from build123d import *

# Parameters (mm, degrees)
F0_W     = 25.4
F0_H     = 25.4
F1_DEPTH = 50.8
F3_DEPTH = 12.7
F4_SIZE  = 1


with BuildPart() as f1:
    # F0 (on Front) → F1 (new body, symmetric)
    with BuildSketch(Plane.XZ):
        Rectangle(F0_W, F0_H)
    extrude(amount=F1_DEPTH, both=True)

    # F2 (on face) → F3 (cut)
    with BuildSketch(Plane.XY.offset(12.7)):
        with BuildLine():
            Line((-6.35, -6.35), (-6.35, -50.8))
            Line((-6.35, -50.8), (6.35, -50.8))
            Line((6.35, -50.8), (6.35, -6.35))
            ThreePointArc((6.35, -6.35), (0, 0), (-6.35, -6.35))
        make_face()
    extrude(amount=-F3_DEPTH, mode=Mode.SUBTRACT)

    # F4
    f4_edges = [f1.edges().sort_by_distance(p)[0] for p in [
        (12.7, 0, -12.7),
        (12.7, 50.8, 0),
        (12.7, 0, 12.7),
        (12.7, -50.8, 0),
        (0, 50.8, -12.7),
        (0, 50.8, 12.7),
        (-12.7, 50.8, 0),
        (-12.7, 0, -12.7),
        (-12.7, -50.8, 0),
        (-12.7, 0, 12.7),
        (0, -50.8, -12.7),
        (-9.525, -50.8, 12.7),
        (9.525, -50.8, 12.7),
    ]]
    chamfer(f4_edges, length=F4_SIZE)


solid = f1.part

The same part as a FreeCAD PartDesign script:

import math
import FreeCAD as App
import Part
import Sketcher
from FreeCAD import Vector
Q = App.Units.Quantity


def edges_at(feature, points):
    """Names of the edges that pass closest to the given points."""
    edges = feature.Shape.Edges
    near = lambda p: min(range(len(edges)), key=lambda i: edges[i].distToShape(Part.Vertex(*p))[0])
    return sorted({f"Edge{near(p) + 1}" for p in points})

doc = App.newDocument("Part")
body = doc.addObject("PartDesign::Body", "Body")

# Sketch on XZ plane
sketch1 = body.newObject("Sketcher::SketchObject", "Sketch")
sketch1.AttachmentSupport = (doc.getObject("XZ_Plane"), [""])
sketch1.MapMode = "FlatFace"
sketch1.addGeometry([
    Part.LineSegment(Vector(-13, 13, 0), Vector(-13, -13, 0)),
    Part.LineSegment(Vector(-13, -13, 0), Vector(13, -13, 0)),
    Part.LineSegment(Vector(13, -13, 0), Vector(13, 13, 0)),
    Part.LineSegment(Vector(13, 13, 0), Vector(-13, 13, 0)),
], False)
sketch1.addConstraint([
    Sketcher.Constraint("Coincident", 0, 2, 1, 1),
    Sketcher.Constraint("Coincident", 1, 2, 2, 1),
    Sketcher.Constraint("Coincident", 2, 2, 3, 1),
    Sketcher.Constraint("Coincident", 3, 2, 0, 1),
    Sketcher.Constraint("Vertical", 0),
    Sketcher.Constraint("Horizontal", 1),
    Sketcher.Constraint("Vertical", 2),
    Sketcher.Constraint("Horizontal", 3),
    Sketcher.Constraint("Symmetric", 0, 2, 2, 2, -1, 1),
    Sketcher.Constraint("Equal", 3, 0),
    Sketcher.Constraint("DistanceX", 1, 1, 1, 2, Q("1 in")),
])
pad1 = body.newObject("PartDesign::Pad", "Pad")
pad1.Profile = sketch1
pad1.Length = Q("4 in")
pad1.Midplane = True

# Sketch on XY plane
sketch2 = body.newObject("Sketcher::SketchObject", "Sketch001")
sketch2.AttachmentSupport = (doc.getObject("XY_Plane"), [""])
sketch2.MapMode = "FlatFace"
sketch2.AttachmentOffset = App.Placement(Vector(0, 0, 0.5 * 25.4), App.Rotation())
sketch2.addGeometry([
    Part.LineSegment(Vector(-6, -6, 0), Vector(-6, -51, 0)),
    Part.LineSegment(Vector(-6, -51, 0), Vector(6, -51, 0)),
    Part.LineSegment(Vector(6, -51, 0), Vector(6, -6, 0)),
    Part.ArcOfCircle(Part.Circle(Vector(0, -6, 0), Vector(0, 0, 1), 6), math.radians(0), math.radians(180)),
], False)
sketch2.addConstraint([
    Sketcher.Constraint("Coincident", 0, 2, 1, 1),
    Sketcher.Constraint("Coincident", 1, 2, 2, 1),
    Sketcher.Constraint("Tangent", 2, 2, 3, 1),
    Sketcher.Constraint("Tangent", 3, 2, 0, 1),
    Sketcher.Constraint("Vertical", 0),
    Sketcher.Constraint("Horizontal", 1),
    Sketcher.Constraint("Vertical", 2),
    Sketcher.Constraint("PointOnObject", 3, 3, -2),
    Sketcher.Constraint("Radius", 3, Q("0.25 in")),
    Sketcher.Constraint("DistanceY", 0, 2, -1, 1, Q("2 in")),
    Sketcher.Constraint("DistanceY", 0, 2, 0, 1, Q("1.75 in")),
])
pocket1 = body.newObject("PartDesign::Pocket", "Pocket")
pocket1.Profile = sketch2
pocket1.Length = Q("0.5 in")
doc.recompute()

chamfer = body.newObject("PartDesign::Chamfer", "Chamfer")
chamfer.Base = (pocket1, edges_at(pocket1, [
    (12.7, 0, -12.7),
    (12.7, 50.8, 0),
    (12.7, 0, 12.7),
    (12.7, -50.8, 0),
    (0, 50.8, -12.7),
    (0, 50.8, 12.7),
    (-12.7, 50.8, 0),
    (-12.7, 0, -12.7),
    (-12.7, -50.8, 0),
    (-12.7, 0, 12.7),
    (0, -50.8, -12.7),
    (-9.525, -50.8, 12.7),
    (9.525, -50.8, 12.7),
]))
chamfer.Size = 1

doc.recompute()
